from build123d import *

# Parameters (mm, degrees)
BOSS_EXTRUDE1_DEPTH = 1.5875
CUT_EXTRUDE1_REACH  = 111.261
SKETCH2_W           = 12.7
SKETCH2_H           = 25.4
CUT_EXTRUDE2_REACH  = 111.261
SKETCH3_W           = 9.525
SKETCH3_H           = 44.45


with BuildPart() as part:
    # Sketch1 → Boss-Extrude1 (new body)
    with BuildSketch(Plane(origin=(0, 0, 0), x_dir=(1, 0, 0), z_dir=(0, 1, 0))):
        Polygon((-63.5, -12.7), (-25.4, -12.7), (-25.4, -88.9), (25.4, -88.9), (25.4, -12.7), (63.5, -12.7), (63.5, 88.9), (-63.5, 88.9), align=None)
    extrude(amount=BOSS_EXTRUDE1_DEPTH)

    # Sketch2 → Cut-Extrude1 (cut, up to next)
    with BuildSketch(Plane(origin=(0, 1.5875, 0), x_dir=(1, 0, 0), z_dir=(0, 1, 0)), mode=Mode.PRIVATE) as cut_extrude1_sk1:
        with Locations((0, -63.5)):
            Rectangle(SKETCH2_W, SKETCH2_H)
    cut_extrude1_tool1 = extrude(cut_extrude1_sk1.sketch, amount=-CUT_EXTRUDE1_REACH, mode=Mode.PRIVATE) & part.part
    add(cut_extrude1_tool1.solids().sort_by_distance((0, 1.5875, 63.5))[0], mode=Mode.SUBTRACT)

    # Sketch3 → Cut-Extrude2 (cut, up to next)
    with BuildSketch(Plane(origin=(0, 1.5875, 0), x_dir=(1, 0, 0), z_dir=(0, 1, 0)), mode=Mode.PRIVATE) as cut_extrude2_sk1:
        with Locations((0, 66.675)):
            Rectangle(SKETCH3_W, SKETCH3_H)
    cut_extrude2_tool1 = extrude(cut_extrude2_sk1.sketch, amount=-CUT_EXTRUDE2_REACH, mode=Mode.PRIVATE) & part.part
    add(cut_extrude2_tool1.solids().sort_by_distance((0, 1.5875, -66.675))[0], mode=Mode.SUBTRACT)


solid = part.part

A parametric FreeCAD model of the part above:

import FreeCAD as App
import Part
import Sketcher

V = App.Vector
Q = App.Units.Quantity

doc = App.newDocument("Part")
params = doc.addObject("Spreadsheet::Sheet", "Params")
for row, (alias, value) in enumerate([
    ("sketch1_width", "2 in"),
    ("sketch1_width2", "5 in"),
    ("sketch1_height", "3 in"),
    ("sketch1_height2", "4 in"),
    ("pad1_length", "0.0625 in"),
    ("sketch2_height", "1 in"),
    ("sketch2_width", "0.5 in"),
    ("sketch3_height", "1.75 in"),
    ("sketch3_width", "0.375 in"),
], start=1):
    params.set(f"A{row}", alias)
    params.set(f"B{row}", "=" + value)
    params.setAlias(f"B{row}", alias)

body = doc.addObject("PartDesign::Body", "Body")

# Sketch on XZ plane
sketch1 = body.newObject("Sketcher::SketchObject", "Sketch")
sketch1.AttachmentSupport = (doc.getObject("XZ_Plane"), [""])
sketch1.MapMode = "FlatFace"
sketch1.addGeometry([
    Part.LineSegment(V(-64, 13, 0), V(-25, 13, 0)),  # 0
    Part.LineSegment(V(-25, 13, 0), V(-25, 89, 0)),  # 1
    Part.LineSegment(V(-25, 89, 0), V(25, 89, 0)),  # 2
    Part.LineSegment(V(25, 89, 0), V(25, 13, 0)),  # 3
    Part.LineSegment(V(25, 13, 0), V(64, 13, 0)),  # 4
    Part.LineSegment(V(64, 13, 0), V(64, -89, 0)),  # 5
    Part.LineSegment(V(64, -89, 0), V(-64, -89, 0)),  # 6
    Part.LineSegment(V(-64, -89, 0), V(-64, 13, 0)),  # 7
], False)
sketch1.addConstraint([
    Sketcher.Constraint("Coincident", 0, 2, 1, 1),
    Sketcher.Constraint("Coincident", 1, 2, 2, 1),
    Sketcher.Constraint("Coincident", 2, 2, 3, 1),
    Sketcher.Constraint("Coincident", 3, 2, 4, 1),
    Sketcher.Constraint("Coincident", 4, 2, 5, 1),
    Sketcher.Constraint("Coincident", 5, 2, 6, 1),
    Sketcher.Constraint("Coincident", 6, 2, 7, 1),
    Sketcher.Constraint("Coincident", 7, 2, 0, 1),
    Sketcher.Constraint("Horizontal", 0),
    Sketcher.Constraint("Vertical", 1),
    Sketcher.Constraint("Horizontal", 2),
    Sketcher.Constraint("Vertical", 3),
    Sketcher.Constraint("Horizontal", 4),
    Sketcher.Constraint("Vertical", 5),
    Sketcher.Constraint("Horizontal", 6),
    Sketcher.Constraint("Vertical", 7),
    Sketcher.Constraint("Symmetric", 0, 2, 3, 2, -2),
    Sketcher.Constraint("Equal", 0, 4),
    Sketcher.Constraint("DistanceX", 2, 1, 2, 2, Q("2 in")),
    Sketcher.Constraint("DistanceX", 6, 2, 6, 1, Q("5 in")),
    Sketcher.Constraint("DistanceY", 1, 1, 1, 2, Q("3 in")),
    Sketcher.Constraint("DistanceY", 5, 2, 5, 1, Q("4 in")),
    Sketcher.Constraint("DistanceY", -1, 1, 0, 2, Q("0.5 in")),
])
sketch1.setExpression("Constraints[18]", "Params.sketch1_width")
sketch1.setExpression("Constraints[19]", "Params.sketch1_width2")
sketch1.setExpression("Constraints[20]", "Params.sketch1_height")
sketch1.setExpression("Constraints[21]", "Params.sketch1_height2")
pad1 = body.newObject("PartDesign::Pad", "Pad")
pad1.Profile = sketch1
pad1.setExpression("Length", "Params.pad1_length")
pad1.Reversed = True

# Sketch on XZ plane
sketch2 = body.newObject("Sketcher::SketchObject", "Sketch001")
sketch2.AttachmentSupport = (doc.getObject("XZ_Plane"), [""])
sketch2.MapMode = "FlatFace"
sketch2.AttachmentOffset = App.Placement(V(0, 0, -0.0625 * 25.4), App.Rotation())
sketch2.addGeometry([
    Part.LineSegment(V(-6, 51, 0), V(-6, 76, 0)),
    Part.LineSegment(V(-6, 76, 0), V(6, 76, 0)),
    Part.LineSegment(V(6, 76, 0), V(6, 51, 0)),
    Part.LineSegment(V(6, 51, 0), V(-6, 51, 0)),
], False)
sketch2.addConstraint([
    Sketcher.Constraint("Coincident", 0, 2, 1, 1),
    Sketcher.Constraint("Coincident", 1, 2, 2, 1),
    Sketcher.Constraint("Coincident", 2, 2, 3, 1),
    Sketcher.Constraint("Coincident", 3, 2, 0, 1),
    Sketcher.Constraint("Vertical", 0),
    Sketcher.Constraint("Horizontal", 1),
    Sketcher.Constraint("Vertical", 2),
    Sketcher.Constraint("Horizontal", 3),
    Sketcher.Constraint("DistanceY", 0, 1, 0, 2, Q("1 in")),
    Sketcher.Constraint("DistanceX", 1, 1, 1, 2, Q("0.5 in")),
    Sketcher.Constraint("DistanceY", -1, 1, 0, 2, Q("3 in")),
    Sketcher.Constraint("DistanceX", 0, 2, -1, 1, Q("0.25 in")),
])
sketch2.setExpression("Constraints[8]", "Params.sketch2_height")
sketch2.setExpression("Constraints[9]", "Params.sketch2_width")
pocket1 = body.newObject("PartDesign::Pocket", "Pocket")
pocket1.Profile = sketch2
pocket1.Type = "UpToFirst"
pocket1.Reversed = True

# Sketch on XZ plane
sketch3 = body.newObject("Sketcher::SketchObject", "Sketch002")
sketch3.AttachmentSupport = (doc.getObject("XZ_Plane"), [""])
sketch3.MapMode = "FlatFace"
sketch3.AttachmentOffset = App.Placement(V(0, 0, -0.0625 * 25.4), App.Rotation())
sketch3.addGeometry([
    Part.LineSegment(V(-5, -89, 0), V(-5, -44, 0)),
    Part.LineSegment(V(-5, -44, 0), V(5, -44, 0)),
    Part.LineSegment(V(5, -44, 0), V(5, -89, 0)),
    Part.LineSegment(V(5, -89, 0), V(-5, -89, 0)),
], False)
sketch3.addConstraint([
    Sketcher.Constraint("Coincident", 0, 2, 1, 1),
    Sketcher.Constraint("Coincident", 1, 2, 2, 1),
    Sketcher.Constraint("Coincident", 2, 2, 3, 1),
    Sketcher.Constraint("Coincident", 3, 2, 0, 1),
    Sketcher.Constraint("Vertical", 0),
    Sketcher.Constraint("Horizontal", 1),
    Sketcher.Constraint("Vertical", 2),
    Sketcher.Constraint("Horizontal", 3),
    Sketcher.Constraint("DistanceY", 0, 1, 0, 2, Q("1.75 in")),
    Sketcher.Constraint("DistanceY", 2, 2, -1, 1, Q("3.5 in")),
    Sketcher.Constraint("DistanceX", 1, 1, 1, 2, Q("0.375 in")),
    Sketcher.Constraint("DistanceX", 0, 2, -1, 1, Q("0.1875 in")),
])
sketch3.setExpression("Constraints[8]", "Params.sketch3_height")
sketch3.setExpression("Constraints[10]", "Params.sketch3_width")
pocket2 = body.newObject("PartDesign::Pocket", "Pocket001")
pocket2.Profile = sketch3
pocket2.Type = "UpToFirst"
pocket2.Reversed = True

doc.recompute()
